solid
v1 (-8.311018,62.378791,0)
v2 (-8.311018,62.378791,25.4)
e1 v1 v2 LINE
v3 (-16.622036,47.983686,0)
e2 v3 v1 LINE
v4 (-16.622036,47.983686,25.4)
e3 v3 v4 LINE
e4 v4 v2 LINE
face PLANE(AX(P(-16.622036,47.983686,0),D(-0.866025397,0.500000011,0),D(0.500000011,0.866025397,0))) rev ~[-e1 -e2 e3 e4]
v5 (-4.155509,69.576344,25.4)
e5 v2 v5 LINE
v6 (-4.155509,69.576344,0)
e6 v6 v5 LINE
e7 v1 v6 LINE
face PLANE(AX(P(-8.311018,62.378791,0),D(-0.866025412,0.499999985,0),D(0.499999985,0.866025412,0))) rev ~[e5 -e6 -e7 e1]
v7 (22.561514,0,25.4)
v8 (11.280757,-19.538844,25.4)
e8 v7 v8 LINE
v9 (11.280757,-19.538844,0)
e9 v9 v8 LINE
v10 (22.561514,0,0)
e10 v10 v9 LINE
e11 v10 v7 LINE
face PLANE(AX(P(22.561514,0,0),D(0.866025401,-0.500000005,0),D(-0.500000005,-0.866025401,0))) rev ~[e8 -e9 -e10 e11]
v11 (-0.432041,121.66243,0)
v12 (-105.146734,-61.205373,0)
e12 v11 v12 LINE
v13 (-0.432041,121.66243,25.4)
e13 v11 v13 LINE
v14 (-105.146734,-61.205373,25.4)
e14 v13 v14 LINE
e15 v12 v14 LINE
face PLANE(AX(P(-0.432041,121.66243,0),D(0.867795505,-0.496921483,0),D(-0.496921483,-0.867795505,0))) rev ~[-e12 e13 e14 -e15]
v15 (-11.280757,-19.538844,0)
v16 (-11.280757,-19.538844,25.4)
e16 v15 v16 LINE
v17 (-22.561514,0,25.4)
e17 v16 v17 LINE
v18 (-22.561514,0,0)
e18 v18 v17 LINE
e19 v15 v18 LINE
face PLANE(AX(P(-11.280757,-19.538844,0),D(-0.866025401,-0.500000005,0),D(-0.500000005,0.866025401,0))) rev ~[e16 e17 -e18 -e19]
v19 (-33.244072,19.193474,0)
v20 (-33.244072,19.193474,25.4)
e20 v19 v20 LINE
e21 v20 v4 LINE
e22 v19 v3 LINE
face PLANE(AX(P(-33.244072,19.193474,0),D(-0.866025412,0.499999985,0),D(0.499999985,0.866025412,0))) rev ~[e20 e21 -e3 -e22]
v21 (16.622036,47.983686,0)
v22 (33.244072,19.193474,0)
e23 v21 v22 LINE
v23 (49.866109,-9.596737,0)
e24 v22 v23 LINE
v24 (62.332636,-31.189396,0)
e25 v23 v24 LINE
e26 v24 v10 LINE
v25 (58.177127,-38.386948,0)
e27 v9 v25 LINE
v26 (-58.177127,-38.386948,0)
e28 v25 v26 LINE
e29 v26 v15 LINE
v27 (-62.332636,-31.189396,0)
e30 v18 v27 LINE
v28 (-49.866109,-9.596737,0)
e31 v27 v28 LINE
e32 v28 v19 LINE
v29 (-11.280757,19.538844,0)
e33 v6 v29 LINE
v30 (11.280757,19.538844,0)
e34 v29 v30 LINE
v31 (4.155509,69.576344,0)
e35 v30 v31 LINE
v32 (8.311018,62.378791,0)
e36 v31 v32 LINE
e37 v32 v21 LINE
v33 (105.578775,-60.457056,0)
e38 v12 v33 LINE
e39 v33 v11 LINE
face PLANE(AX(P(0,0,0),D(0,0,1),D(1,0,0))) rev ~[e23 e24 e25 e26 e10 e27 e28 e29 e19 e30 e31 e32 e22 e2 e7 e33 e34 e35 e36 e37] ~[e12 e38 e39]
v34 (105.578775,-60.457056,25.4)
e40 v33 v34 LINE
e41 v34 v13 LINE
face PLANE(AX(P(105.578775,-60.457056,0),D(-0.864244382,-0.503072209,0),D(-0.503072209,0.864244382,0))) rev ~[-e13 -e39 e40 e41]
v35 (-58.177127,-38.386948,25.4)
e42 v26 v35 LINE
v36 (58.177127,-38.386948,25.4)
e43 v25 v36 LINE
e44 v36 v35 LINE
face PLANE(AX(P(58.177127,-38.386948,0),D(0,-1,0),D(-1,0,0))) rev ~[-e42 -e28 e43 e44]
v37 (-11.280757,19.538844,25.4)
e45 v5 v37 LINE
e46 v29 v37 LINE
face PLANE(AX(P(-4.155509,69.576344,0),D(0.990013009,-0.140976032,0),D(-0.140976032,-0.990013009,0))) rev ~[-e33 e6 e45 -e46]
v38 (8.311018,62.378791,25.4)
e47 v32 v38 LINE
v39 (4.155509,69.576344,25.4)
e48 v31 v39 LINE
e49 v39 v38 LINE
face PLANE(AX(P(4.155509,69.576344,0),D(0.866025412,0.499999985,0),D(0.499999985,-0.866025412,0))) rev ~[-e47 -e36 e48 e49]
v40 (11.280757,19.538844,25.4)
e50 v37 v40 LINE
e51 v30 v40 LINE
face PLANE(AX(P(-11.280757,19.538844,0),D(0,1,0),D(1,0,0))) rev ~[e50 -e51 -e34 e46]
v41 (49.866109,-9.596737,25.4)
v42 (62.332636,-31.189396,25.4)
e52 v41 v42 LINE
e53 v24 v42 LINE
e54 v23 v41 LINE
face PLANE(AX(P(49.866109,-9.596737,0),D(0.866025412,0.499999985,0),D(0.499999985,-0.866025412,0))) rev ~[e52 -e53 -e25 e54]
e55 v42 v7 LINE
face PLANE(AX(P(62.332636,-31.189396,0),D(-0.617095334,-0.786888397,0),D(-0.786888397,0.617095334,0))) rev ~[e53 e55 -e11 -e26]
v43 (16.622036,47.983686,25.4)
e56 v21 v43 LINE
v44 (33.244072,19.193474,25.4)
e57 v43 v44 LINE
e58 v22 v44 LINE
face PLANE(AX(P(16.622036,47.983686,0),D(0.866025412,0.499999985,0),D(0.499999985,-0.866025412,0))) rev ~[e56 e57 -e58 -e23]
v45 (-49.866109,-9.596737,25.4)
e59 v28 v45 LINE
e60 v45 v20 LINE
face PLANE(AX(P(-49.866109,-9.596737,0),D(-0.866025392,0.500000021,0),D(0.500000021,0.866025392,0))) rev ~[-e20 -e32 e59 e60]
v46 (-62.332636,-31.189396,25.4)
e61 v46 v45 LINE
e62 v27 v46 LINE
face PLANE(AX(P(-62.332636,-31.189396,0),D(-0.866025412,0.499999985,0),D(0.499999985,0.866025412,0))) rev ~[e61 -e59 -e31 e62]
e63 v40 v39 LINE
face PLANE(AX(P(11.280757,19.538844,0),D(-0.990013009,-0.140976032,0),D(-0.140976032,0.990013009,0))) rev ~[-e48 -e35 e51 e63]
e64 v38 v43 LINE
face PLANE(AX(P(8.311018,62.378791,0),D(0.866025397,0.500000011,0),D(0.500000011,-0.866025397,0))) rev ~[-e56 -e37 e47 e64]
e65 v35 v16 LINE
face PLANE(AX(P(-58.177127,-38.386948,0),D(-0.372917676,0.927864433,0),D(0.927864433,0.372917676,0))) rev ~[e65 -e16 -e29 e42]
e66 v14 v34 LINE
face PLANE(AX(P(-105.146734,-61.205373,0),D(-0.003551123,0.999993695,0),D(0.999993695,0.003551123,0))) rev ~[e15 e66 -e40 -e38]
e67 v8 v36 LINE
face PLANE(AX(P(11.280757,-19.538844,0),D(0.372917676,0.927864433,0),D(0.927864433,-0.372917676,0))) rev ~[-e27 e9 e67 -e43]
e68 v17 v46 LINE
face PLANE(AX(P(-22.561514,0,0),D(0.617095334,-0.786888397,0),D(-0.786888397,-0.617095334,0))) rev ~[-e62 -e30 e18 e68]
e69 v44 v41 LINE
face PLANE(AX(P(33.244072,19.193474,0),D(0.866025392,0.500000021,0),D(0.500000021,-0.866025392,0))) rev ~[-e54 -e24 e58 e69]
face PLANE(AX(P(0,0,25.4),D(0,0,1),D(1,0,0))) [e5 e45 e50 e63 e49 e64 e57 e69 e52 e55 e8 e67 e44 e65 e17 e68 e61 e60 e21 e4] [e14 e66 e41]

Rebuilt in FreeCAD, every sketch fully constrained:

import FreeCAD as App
import Part
import Sketcher
from FreeCAD import Vector
Q = App.Units.Quantity

doc = App.newDocument("Part")
body = doc.addObject("PartDesign::Body", "Body")

# Sketch on XY plane
sketch1 = doc.addObject("Sketcher::SketchObject", "Sketch")
body.addObject(sketch1)
sketch1.AttachmentSupport = (doc.XY_Plane, [""])
sketch1.MapMode = "FlatFace"
sketch1.addGeometry([
    Part.LineSegment(Vector(-105, -61, 0), Vector(106, -60, 0)),  # 0
    Part.LineSegment(Vector(106, -60, 0), Vector(0, 122, 0)),  # 1
    Part.LineSegment(Vector(0, 122, 0), Vector(-105, -61, 0)),  # 2
    Part.LineSegment(Vector(50, -10, 0), Vector(62, -31, 0)),  # 3
    Part.LineSegment(Vector(62, -31, 0), Vector(23, 0, 0)),  # 4
    Part.LineSegment(Vector(23, 0, 0), Vector(11, -20, 0)),  # 5
    Part.LineSegment(Vector(11, -20, 0), Vector(58, -38, 0)),  # 6
    Part.LineSegment(Vector(58, -38, 0), Vector(-58, -38, 0)),  # 7
    Part.LineSegment(Vector(-58, -38, 0), Vector(-11, -20, 0)),  # 8
    Part.LineSegment(Vector(-11, -20, 0), Vector(-23, 0, 0)),  # 9
    Part.LineSegment(Vector(-23, 0, 0), Vector(-62, -31, 0)),  # 10
    Part.LineSegment(Vector(-62, -31, 0), Vector(-50, -10, 0)),  # 11
    Part.LineSegment(Vector(-50, -10, 0), Vector(-33, 19, 0)),  # 12
    Part.LineSegment(Vector(-33, 19, 0), Vector(-17, 48, 0)),  # 13
    Part.LineSegment(Vector(-17, 48, 0), Vector(-8, 62, 0)),  # 14
    Part.LineSegment(Vector(-8, 62, 0), Vector(-4, 70, 0)),  # 15
    Part.LineSegment(Vector(-4, 70, 0), Vector(-11, 20, 0)),  # 16
    Part.LineSegment(Vector(-11, 20, 0), Vector(11, 20, 0)),  # 17
    Part.LineSegment(Vector(11, 20, 0), Vector(4, 70, 0)),  # 18
    Part.LineSegment(Vector(4, 70, 0), Vector(8, 62, 0)),  # 19
    Part.LineSegment(Vector(8, 62, 0), Vector(17, 48, 0)),  # 20
    Part.LineSegment(Vector(17, 48, 0), Vector(33, 19, 0)),  # 21
    Part.LineSegment(Vector(33, 19, 0), Vector(50, -10, 0)),  # 22
], False)
sketch1.addConstraint([
    Sketcher.Constraint("Coincident", 0, 2, 1, 1),
    Sketcher.Constraint("Coincident", 1, 2, 2, 1),
    Sketcher.Constraint("Coincident", 2, 2, 0, 1),
    Sketcher.Constraint("Coincident", 3, 2, 4, 1),
    Sketcher.Constraint("Coincident", 4, 2, 5, 1),
    Sketcher.Constraint("Coincident", 5, 2, 6, 1),
    Sketcher.Constraint("Coincident", 6, 2, 7, 1),
    Sketcher.Constraint("Coincident", 7, 2, 8, 1),
    Sketcher.Constraint("Coincident", 8, 2, 9, 1),
    Sketcher.Constraint("Coincident", 9, 2, 10, 1),
    Sketcher.Constraint("Coincident", 10, 2, 11, 1),
    Sketcher.Constraint("Coincident", 11, 2, 12, 1),
    Sketcher.Constraint("Coincident", 12, 2, 13, 1),
    Sketcher.Constraint("Coincident", 13, 2, 14, 1),
    Sketcher.Constraint("Coincident", 14, 2, 15, 1),
    Sketcher.Constraint("Coincident", 15, 2, 16, 1),
    Sketcher.Constraint("Coincident", 16, 2, 17, 1),
    Sketcher.Constraint("Coincident", 17, 2, 18, 1),
    Sketcher.Constraint("Coincident", 18, 2, 19, 1),
    Sketcher.Constraint("Coincident", 19, 2, 20, 1),
    Sketcher.Constraint("Coincident", 20, 2, 21, 1),
    Sketcher.Constraint("Coincident", 21, 2, 22, 1),
    Sketcher.Constraint("Coincident", 22, 2, 3, 1),
    Sketcher.Constraint("Horizontal", 7),
    Sketcher.Constraint("Horizontal", 17),
    Sketcher.Constraint("Symmetric", 4, 2, 9, 2, -1, 1),
    Sketcher.Constraint("Symmetric", 5, 2, 16, 2, -1, 1),
    Sketcher.Constraint("Symmetric", 8, 2, 17, 2, -1, 1),
    Sketcher.Constraint("Symmetric", 3, 2, 10, 2, -2),
    Sketcher.Constraint("Symmetric", 15, 2, 18, 2, -2),
    Sketcher.Constraint("Symmetric", 14, 2, 19, 2, -2),
    Sketcher.Constraint("Symmetric", 13, 2, 20, 2, -2),
    Sketcher.Constraint("Symmetric", 12, 2, 21, 2, -2),
    Sketcher.Constraint("Symmetric", 11, 2, 22, 2, -2),
    Sketcher.Constraint("PointOnObject", 4, 2, -1),
    Sketcher.Constraint("Parallel", 3, 9),
    Sketcher.Constraint("Parallel", 5, 11),
    Sketcher.Constraint("Parallel", 11, 12),
    Sketcher.Constraint("Parallel", 12, 13),
    Sketcher.Constraint("Parallel", 13, 14),
    Sketcher.Constraint("Parallel", 14, 15),
    Sketcher.Constraint("Equal", 0, 1),
    Sketcher.Constraint("Equal", 1, 2),
    Sketcher.Constraint("Equal", 4, 6),
    Sketcher.Constraint("Equal", 6, 8),
    Sketcher.Constraint("Equal", 12, 13),
    Sketcher.Constraint("Equal", 10, 16),
    Sketcher.Constraint("Angle", 3, Q("-60.000001 deg")),
    Sketcher.Constraint("DistanceY", 17, 2, 18, 2, 50.0375),
    Sketcher.Constraint("Distance", 1, 210.726838),
    Sketcher.Constraint("Distance", 15, 8.311018),
    Sketcher.Constraint("DistanceX", 7, 2, 7, 1, 116.354254),
    Sketcher.Constraint("DistanceX", 17, 1, 17, 2, 22.561514),
    Sketcher.Constraint("DistanceX", 1, 2, -1, 1, 0.432041),
    Sketcher.Constraint("DistanceY", -1, 1, 1, 2, 121.66243),
    Sketcher.Constraint("DistanceX", 11, 2, -1, 1, 49.866109),
    Sketcher.Constraint("DistanceX", 14, 2, -1, 1, 8.311018),
    Sketcher.Constraint("DistanceY", -1, 1, 14, 2, 62.378791),
    Sketcher.Constraint("DistanceX", 3, 2, 0, 2, 43.246139),
    Sketcher.Constraint("DistanceX", 12, 2, 9, 2, 10.682558),
])
pad1 = doc.addObject("PartDesign::Pad", "Pad")
body.addObject(pad1)
pad1.Profile = sketch1
pad1.Length = Q("1 in")

doc.recompute()
